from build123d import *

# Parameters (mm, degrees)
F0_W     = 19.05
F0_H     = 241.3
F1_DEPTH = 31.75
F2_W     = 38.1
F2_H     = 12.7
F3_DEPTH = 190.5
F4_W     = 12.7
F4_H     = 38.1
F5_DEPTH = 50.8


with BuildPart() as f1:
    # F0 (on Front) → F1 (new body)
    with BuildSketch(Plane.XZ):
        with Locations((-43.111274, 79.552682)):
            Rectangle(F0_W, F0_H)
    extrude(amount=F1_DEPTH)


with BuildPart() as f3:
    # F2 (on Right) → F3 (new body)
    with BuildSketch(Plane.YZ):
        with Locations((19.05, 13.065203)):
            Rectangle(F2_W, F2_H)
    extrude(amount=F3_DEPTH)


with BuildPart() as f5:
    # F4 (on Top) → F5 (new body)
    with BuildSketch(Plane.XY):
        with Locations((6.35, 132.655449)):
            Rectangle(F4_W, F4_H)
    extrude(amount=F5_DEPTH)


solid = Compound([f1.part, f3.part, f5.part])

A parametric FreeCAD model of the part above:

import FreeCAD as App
import Part
import Sketcher

V = App.Vector
Q = App.Units.Quantity

doc = App.newDocument("Part")
params = doc.addObject("Spreadsheet::Sheet", "Params")
for row, (alias, value) in enumerate([
    ("sketch1_height", "9.5 in"),
    ("sketch1_width", "0.75 in"),
    ("pad1_length", "1.25 in"),
    ("sketch2_width", "1.5 in"),
    ("sketch2_height", "0.5 in"),
    ("pad2_length", "7.5 in"),
    ("sketch3_width", "0.5 in"),
    ("sketch3_height", "1.5 in"),
    ("pad3_length", "2 in"),
], start=1):
    params.set(f"A{row}", alias)
    params.set(f"B{row}", "=" + value)
    params.setAlias(f"B{row}", alias)

body = doc.addObject("PartDesign::Body", "Body")

# Sketch on XZ plane
sketch1 = body.newObject("Sketcher::SketchObject", "Sketch")
sketch1.AttachmentSupport = (doc.getObject("XZ_Plane"), [""])
sketch1.MapMode = "FlatFace"
sketch1.addGeometry(Part.LineSegment(V(-53, 200, 0), V(-53, -41, 0)), False)
sketch1.addGeometry(Part.LineSegment(V(-53, -41, 0), V(-34, -41, 0)), False)
sketch1.addGeometry(Part.LineSegment(V(-34, -41, 0), V(-34, 200, 0)), False)
sketch1.addGeometry(Part.LineSegment(V(-34, 200, 0), V(-53, 200, 0)), False)
sketch1.addConstraint(Sketcher.Constraint("Coincident", 0, 2, 1, 1))
sketch1.addConstraint(Sketcher.Constraint("Coincident", 1, 2, 2, 1))
sketch1.addConstraint(Sketcher.Constraint("Coincident", 2, 2, 3, 1))
sketch1.addConstraint(Sketcher.Constraint("Coincident", 3, 2, 0, 1))
sketch1.addConstraint(Sketcher.Constraint("Vertical", 0))
sketch1.addConstraint(Sketcher.Constraint("Horizontal", 1))
sketch1.addConstraint(Sketcher.Constraint("Vertical", 2))
sketch1.addConstraint(Sketcher.Constraint("Horizontal", 3))
sketch1.addConstraint(Sketcher.Constraint("DistanceY", 0, 2, 0, 1, Q("9.5 in")))
sketch1.addConstraint(Sketcher.Constraint("DistanceX", 1, 1, 1, 2, Q("0.75 in")))
sketch1.addConstraint(Sketcher.Constraint("DistanceX", 0, 2, -1, 1, Q("52.636274 mm")))
sketch1.addConstraint(Sketcher.Constraint("DistanceY", 0, 2, -1, 1, Q("41.097318 mm")))
sketch1.setExpression("Constraints[8]", "Params.sketch1_height")
sketch1.setExpression("Constraints[9]", "Params.sketch1_width")
pad1 = body.newObject("PartDesign::Pad", "Pad")
pad1.Profile = sketch1
pad1.setExpression("Length", "Params.pad1_length")
body2 = doc.addObject("PartDesign::Body", "Body001")

# Sketch on YZ plane
sketch2 = body2.newObject("Sketcher::SketchObject", "Sketch001")
sketch2.AttachmentSupport = (doc.getObject("YZ_Plane001"), [""])
sketch2.MapMode = "FlatFace"
sketch2.addGeometry(Part.LineSegment(V(0, 19, 0), V(0, 7, 0)), False)
sketch2.addGeometry(Part.LineSegment(V(0, 7, 0), V(38, 7, 0)), False)
sketch2.addGeometry(Part.LineSegment(V(38, 7, 0), V(38, 19, 0)), False)
sketch2.addGeometry(Part.LineSegment(V(38, 19, 0), V(0, 19, 0)), False)
sketch2.addConstraint(Sketcher.Constraint("Coincident", 0, 2, 1, 1))
sketch2.addConstraint(Sketcher.Constraint("Coincident", 1, 2, 2, 1))
sketch2.addConstraint(Sketcher.Constraint("Coincident", 2, 2, 3, 1))
sketch2.addConstraint(Sketcher.Constraint("Coincident", 3, 2, 0, 1))
sketch2.addConstraint(Sketcher.Constraint("Vertical", 0))
sketch2.addConstraint(Sketcher.Constraint("Horizontal", 1))
sketch2.addConstraint(Sketcher.Constraint("Vertical", 2))
sketch2.addConstraint(Sketcher.Constraint("Horizontal", 3))
sketch2.addConstraint(Sketcher.Constraint("PointOnObject", 0, 2, -2))
sketch2.addConstraint(Sketcher.Constraint("DistanceX", 1, 1, 1, 2, Q("1.5 in")))
sketch2.addConstraint(Sketcher.Constraint("DistanceY", 0, 2, 0, 1, Q("0.5 in")))
sketch2.addConstraint(Sketcher.Constraint("DistanceY", -1, 1, 0, 2, Q("6.715203 mm")))
sketch2.setExpression("Constraints[9]", "Params.sketch2_width")
sketch2.setExpression("Constraints[10]", "Params.sketch2_height")
pad2 = body2.newObject("PartDesign::Pad", "Pad001")
pad2.Profile = sketch2
pad2.setExpression("Length", "Params.pad2_length")
body3 = doc.addObject("PartDesign::Body", "Body002")

# Sketch on XY plane
sketch3 = body3.newObject("Sketcher::SketchObject", "Sketch002")
sketch3.AttachmentSupport = (doc.getObject("XY_Plane002"), [""])
sketch3.MapMode = "FlatFace"
sketch3.addGeometry(Part.LineSegment(V(0, 152, 0), V(0, 114, 0)), False)
sketch3.addGeometry(Part.LineSegment(V(0, 114, 0), V(13, 114, 0)), False)
sketch3.addGeometry(Part.LineSegment(V(13, 114, 0), V(13, 152, 0)), False)
sketch3.addGeometry(Part.LineSegment(V(13, 152, 0), V(0, 152, 0)), False)
sketch3.addConstraint(Sketcher.Constraint("Coincident", 0, 2, 1, 1))
sketch3.addConstraint(Sketcher.Constraint("Coincident", 1, 2, 2, 1))
sketch3.addConstraint(Sketcher.Constraint("Coincident", 2, 2, 3, 1))
sketch3.addConstraint(Sketcher.Constraint("Coincident", 3, 2, 0, 1))
sketch3.addConstraint(Sketcher.Constraint("Vertical", 0))
sketch3.addConstraint(Sketcher.Constraint("Horizontal", 1))
sketch3.addConstraint(Sketcher.Constraint("Vertical", 2))
sketch3.addConstraint(Sketcher.Constraint("Horizontal", 3))
sketch3.addConstraint(Sketcher.Constraint("PointOnObject", 0, 2, -2))
sketch3.addConstraint(Sketcher.Constraint("DistanceX", 1, 1, 1, 2, Q("0.5 in")))
sketch3.addConstraint(Sketcher.Constraint("DistanceY", 0, 2, 0, 1, Q("1.5 in")))
sketch3.addConstraint(Sketcher.Constraint("DistanceY", -1, 1, 0, 2, Q("113.605449 mm")))
sketch3.setExpression("Constraints[9]", "Params.sketch3_width")
sketch3.setExpression("Constraints[10]", "Params.sketch3_height")
pad3 = body3.newObject("PartDesign::Pad", "Pad002")
pad3.Profile = sketch3
pad3.setExpression("Length", "Params.pad3_length")

doc.recompute()
